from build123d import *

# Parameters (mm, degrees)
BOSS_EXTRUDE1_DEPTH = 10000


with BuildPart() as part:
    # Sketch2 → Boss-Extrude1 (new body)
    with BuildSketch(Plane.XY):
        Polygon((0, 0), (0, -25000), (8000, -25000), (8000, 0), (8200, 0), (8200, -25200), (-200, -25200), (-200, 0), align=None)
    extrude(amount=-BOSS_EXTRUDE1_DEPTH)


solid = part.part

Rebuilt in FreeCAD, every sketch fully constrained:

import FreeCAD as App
import Part
import Sketcher

V = App.Vector


def add_polygon(sketch, points):
    """Adds a closed chain of lines whose ends are joined by coincident constraints."""
    first, n = sketch.GeometryCount, len(points)
    for a, b in zip(points, points[1:] + points[:1]):
        sketch.addGeometry(Part.LineSegment(App.Vector(*a, 0), App.Vector(*b, 0)), False)
    for i in range(n):
        sketch.addConstraint(Sketcher.Constraint("Coincident", first + i, 2, first + (i + 1) % n, 1))

doc = App.newDocument("Part")
body = doc.addObject("PartDesign::Body", "Body")

# Sketch on XY plane
sketch1 = doc.addObject("Sketcher::SketchObject", "Sketch")
body.addObject(sketch1)
sketch1.AttachmentSupport = (doc.XY_Plane, [""])
sketch1.MapMode = "FlatFace"
add_polygon(sketch1, [(0, -25000), (0, 0), (-200, 0), (-200, -25200), (8200, -25200), (8200, 0), (8000, 0), (8000, -25000)])  # lines 0-7
sketch1.addConstraint(Sketcher.Constraint("Vertical", 0))
sketch1.addConstraint(Sketcher.Constraint("Horizontal", 1))
sketch1.addConstraint(Sketcher.Constraint("Vertical", 2))
sketch1.addConstraint(Sketcher.Constraint("Horizontal", 3))
sketch1.addConstraint(Sketcher.Constraint("Vertical", 4))
sketch1.addConstraint(Sketcher.Constraint("Horizontal", 5))
sketch1.addConstraint(Sketcher.Constraint("Vertical", 6))
sketch1.addConstraint(Sketcher.Constraint("Horizontal", 7))
sketch1.addConstraint(Sketcher.Constraint("Coincident", 0, 2, -1, 1))
sketch1.addConstraint(Sketcher.Constraint("PointOnObject", 4, 2, -1))
sketch1.addConstraint(Sketcher.Constraint("Equal", 1, 5))
sketch1.addConstraint(Sketcher.Constraint("DistanceX", 1, 2, 1, 1, 200.0))
sketch1.addConstraint(Sketcher.Constraint("DistanceX", 3, 1, 3, 2, 8400.0))
sketch1.addConstraint(Sketcher.Constraint("DistanceY", 0, 1, 0, 2, 25000.0))
sketch1.addConstraint(Sketcher.Constraint("DistanceY", 2, 2, 2, 1, 25200.0))
pad1 = doc.addObject("PartDesign::Pad", "Pad")
body.addObject(pad1)
pad1.Profile = sketch1
pad1.Length = 10000
pad1.Reversed = True

doc.recompute()
